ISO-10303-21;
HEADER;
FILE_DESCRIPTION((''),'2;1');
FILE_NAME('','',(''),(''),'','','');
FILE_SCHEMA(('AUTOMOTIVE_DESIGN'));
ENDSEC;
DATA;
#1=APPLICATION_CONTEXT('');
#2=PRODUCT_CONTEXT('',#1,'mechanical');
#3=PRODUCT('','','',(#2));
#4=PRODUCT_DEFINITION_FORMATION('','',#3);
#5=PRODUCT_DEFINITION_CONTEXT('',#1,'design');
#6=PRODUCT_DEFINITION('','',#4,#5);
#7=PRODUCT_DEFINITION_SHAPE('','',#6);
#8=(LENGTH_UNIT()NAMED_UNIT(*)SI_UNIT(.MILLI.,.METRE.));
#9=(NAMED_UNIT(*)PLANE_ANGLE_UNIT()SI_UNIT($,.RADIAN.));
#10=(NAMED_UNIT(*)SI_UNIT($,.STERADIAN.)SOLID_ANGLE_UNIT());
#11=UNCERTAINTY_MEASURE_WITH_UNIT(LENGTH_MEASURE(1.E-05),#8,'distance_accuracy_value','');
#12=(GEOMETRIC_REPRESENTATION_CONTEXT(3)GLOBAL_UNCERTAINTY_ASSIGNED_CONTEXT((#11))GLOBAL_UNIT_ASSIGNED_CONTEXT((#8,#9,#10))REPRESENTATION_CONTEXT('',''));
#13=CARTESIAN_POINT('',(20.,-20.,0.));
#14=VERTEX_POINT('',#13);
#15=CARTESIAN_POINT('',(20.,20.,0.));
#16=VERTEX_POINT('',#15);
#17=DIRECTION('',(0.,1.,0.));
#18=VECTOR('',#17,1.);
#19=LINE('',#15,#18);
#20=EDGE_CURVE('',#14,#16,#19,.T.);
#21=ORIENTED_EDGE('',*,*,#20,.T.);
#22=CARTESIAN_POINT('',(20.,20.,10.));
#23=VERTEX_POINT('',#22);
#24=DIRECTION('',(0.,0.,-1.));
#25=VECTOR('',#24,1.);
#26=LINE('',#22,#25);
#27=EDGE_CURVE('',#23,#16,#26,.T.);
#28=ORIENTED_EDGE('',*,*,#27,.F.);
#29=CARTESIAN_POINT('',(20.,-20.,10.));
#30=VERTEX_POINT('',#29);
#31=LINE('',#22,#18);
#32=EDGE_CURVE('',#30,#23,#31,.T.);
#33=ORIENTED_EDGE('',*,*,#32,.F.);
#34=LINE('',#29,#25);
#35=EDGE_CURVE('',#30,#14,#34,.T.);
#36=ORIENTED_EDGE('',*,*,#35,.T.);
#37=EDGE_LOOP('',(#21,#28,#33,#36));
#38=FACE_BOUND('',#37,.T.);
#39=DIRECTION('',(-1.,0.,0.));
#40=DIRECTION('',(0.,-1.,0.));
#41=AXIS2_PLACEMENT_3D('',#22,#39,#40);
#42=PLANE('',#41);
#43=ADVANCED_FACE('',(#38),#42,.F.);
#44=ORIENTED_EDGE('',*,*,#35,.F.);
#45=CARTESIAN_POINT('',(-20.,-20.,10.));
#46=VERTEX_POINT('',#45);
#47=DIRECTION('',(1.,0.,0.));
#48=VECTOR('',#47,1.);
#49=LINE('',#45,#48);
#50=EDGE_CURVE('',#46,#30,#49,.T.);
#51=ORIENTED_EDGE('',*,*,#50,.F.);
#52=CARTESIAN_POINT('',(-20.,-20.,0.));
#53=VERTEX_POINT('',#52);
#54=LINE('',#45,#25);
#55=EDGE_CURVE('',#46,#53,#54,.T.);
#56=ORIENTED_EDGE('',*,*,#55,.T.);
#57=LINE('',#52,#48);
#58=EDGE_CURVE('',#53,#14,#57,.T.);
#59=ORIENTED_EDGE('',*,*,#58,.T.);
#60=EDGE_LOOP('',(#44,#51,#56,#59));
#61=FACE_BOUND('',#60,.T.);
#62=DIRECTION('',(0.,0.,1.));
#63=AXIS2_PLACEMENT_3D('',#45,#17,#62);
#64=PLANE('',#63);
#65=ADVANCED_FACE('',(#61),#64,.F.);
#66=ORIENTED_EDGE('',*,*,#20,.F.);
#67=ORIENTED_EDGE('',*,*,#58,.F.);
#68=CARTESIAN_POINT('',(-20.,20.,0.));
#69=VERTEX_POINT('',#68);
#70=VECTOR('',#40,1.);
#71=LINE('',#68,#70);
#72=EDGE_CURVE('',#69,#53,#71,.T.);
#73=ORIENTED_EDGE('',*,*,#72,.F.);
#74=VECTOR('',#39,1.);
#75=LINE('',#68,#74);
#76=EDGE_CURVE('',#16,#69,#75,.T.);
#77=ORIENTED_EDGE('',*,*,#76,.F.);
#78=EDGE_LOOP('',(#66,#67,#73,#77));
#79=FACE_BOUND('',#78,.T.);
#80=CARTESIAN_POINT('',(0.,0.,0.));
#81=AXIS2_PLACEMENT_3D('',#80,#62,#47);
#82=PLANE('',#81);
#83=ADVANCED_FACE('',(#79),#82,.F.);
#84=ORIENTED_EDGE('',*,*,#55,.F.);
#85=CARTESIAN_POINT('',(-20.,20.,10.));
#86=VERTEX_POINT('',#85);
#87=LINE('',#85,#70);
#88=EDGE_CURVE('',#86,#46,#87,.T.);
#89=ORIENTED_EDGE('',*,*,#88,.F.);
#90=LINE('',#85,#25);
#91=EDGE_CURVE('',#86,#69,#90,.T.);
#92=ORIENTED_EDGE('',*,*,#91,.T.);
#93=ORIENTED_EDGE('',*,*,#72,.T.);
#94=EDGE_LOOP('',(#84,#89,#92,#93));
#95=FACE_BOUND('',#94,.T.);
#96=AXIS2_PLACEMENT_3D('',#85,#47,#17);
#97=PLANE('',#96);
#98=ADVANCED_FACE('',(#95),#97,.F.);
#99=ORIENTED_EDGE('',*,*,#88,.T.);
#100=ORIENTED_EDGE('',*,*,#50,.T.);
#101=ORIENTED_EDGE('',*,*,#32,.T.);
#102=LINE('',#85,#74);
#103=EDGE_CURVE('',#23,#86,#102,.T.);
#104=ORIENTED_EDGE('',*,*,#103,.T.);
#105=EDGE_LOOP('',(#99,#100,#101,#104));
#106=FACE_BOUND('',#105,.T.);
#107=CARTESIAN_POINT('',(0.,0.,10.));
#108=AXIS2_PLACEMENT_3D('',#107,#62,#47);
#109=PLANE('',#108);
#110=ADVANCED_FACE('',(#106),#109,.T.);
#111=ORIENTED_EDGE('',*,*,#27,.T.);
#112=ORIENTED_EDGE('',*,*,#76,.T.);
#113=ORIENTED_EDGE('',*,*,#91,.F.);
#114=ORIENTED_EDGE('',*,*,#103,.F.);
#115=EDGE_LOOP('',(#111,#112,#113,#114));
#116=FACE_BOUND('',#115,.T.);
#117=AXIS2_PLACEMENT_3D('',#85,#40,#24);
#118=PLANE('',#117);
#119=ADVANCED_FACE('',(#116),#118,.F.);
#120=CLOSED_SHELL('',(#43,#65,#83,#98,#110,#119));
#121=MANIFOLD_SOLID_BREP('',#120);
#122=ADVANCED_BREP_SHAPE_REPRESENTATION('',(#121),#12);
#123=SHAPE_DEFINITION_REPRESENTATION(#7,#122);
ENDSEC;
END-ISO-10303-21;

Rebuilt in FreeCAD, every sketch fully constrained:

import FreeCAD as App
import Part
import Sketcher

V = App.Vector


def add_polygon(sketch, points):
    """Adds a closed chain of lines whose ends are joined by coincident constraints."""
    first, n = sketch.GeometryCount, len(points)
    for a, b in zip(points, points[1:] + points[:1]):
        sketch.addGeometry(Part.LineSegment(App.Vector(*a, 0), App.Vector(*b, 0)), False)
    for i in range(n):
        sketch.addConstraint(Sketcher.Constraint("Coincident", first + i, 2, first + (i + 1) % n, 1))

doc = App.newDocument("Part")
body = doc.addObject("PartDesign::Body", "Body")

# Sketch on XY plane
sketch1 = body.newObject("Sketcher::SketchObject", "Sketch")
sketch1.AttachmentSupport = (doc.getObject("XY_Plane"), [""])
sketch1.MapMode = "FlatFace"
add_polygon(sketch1, [(-20, 20), (-20, -20), (20, -20), (20, 20)])  # lines 0-3
sketch1.addConstraint([
    Sketcher.Constraint("Vertical", 0),
    Sketcher.Constraint("Horizontal", 1),
    Sketcher.Constraint("Vertical", 2),
    Sketcher.Constraint("Horizontal", 3),
    Sketcher.Constraint("Symmetric", 0, 2, 2, 2, -1, 1),
    Sketcher.Constraint("Equal", 3, 0),
    Sketcher.Constraint("DistanceX", 1, 1, 1, 2, 40.0),
])
pad1 = body.newObject("PartDesign::Pad", "Pad")
pad1.Profile = sketch1
pad1.Length = 10

doc.recompute()
